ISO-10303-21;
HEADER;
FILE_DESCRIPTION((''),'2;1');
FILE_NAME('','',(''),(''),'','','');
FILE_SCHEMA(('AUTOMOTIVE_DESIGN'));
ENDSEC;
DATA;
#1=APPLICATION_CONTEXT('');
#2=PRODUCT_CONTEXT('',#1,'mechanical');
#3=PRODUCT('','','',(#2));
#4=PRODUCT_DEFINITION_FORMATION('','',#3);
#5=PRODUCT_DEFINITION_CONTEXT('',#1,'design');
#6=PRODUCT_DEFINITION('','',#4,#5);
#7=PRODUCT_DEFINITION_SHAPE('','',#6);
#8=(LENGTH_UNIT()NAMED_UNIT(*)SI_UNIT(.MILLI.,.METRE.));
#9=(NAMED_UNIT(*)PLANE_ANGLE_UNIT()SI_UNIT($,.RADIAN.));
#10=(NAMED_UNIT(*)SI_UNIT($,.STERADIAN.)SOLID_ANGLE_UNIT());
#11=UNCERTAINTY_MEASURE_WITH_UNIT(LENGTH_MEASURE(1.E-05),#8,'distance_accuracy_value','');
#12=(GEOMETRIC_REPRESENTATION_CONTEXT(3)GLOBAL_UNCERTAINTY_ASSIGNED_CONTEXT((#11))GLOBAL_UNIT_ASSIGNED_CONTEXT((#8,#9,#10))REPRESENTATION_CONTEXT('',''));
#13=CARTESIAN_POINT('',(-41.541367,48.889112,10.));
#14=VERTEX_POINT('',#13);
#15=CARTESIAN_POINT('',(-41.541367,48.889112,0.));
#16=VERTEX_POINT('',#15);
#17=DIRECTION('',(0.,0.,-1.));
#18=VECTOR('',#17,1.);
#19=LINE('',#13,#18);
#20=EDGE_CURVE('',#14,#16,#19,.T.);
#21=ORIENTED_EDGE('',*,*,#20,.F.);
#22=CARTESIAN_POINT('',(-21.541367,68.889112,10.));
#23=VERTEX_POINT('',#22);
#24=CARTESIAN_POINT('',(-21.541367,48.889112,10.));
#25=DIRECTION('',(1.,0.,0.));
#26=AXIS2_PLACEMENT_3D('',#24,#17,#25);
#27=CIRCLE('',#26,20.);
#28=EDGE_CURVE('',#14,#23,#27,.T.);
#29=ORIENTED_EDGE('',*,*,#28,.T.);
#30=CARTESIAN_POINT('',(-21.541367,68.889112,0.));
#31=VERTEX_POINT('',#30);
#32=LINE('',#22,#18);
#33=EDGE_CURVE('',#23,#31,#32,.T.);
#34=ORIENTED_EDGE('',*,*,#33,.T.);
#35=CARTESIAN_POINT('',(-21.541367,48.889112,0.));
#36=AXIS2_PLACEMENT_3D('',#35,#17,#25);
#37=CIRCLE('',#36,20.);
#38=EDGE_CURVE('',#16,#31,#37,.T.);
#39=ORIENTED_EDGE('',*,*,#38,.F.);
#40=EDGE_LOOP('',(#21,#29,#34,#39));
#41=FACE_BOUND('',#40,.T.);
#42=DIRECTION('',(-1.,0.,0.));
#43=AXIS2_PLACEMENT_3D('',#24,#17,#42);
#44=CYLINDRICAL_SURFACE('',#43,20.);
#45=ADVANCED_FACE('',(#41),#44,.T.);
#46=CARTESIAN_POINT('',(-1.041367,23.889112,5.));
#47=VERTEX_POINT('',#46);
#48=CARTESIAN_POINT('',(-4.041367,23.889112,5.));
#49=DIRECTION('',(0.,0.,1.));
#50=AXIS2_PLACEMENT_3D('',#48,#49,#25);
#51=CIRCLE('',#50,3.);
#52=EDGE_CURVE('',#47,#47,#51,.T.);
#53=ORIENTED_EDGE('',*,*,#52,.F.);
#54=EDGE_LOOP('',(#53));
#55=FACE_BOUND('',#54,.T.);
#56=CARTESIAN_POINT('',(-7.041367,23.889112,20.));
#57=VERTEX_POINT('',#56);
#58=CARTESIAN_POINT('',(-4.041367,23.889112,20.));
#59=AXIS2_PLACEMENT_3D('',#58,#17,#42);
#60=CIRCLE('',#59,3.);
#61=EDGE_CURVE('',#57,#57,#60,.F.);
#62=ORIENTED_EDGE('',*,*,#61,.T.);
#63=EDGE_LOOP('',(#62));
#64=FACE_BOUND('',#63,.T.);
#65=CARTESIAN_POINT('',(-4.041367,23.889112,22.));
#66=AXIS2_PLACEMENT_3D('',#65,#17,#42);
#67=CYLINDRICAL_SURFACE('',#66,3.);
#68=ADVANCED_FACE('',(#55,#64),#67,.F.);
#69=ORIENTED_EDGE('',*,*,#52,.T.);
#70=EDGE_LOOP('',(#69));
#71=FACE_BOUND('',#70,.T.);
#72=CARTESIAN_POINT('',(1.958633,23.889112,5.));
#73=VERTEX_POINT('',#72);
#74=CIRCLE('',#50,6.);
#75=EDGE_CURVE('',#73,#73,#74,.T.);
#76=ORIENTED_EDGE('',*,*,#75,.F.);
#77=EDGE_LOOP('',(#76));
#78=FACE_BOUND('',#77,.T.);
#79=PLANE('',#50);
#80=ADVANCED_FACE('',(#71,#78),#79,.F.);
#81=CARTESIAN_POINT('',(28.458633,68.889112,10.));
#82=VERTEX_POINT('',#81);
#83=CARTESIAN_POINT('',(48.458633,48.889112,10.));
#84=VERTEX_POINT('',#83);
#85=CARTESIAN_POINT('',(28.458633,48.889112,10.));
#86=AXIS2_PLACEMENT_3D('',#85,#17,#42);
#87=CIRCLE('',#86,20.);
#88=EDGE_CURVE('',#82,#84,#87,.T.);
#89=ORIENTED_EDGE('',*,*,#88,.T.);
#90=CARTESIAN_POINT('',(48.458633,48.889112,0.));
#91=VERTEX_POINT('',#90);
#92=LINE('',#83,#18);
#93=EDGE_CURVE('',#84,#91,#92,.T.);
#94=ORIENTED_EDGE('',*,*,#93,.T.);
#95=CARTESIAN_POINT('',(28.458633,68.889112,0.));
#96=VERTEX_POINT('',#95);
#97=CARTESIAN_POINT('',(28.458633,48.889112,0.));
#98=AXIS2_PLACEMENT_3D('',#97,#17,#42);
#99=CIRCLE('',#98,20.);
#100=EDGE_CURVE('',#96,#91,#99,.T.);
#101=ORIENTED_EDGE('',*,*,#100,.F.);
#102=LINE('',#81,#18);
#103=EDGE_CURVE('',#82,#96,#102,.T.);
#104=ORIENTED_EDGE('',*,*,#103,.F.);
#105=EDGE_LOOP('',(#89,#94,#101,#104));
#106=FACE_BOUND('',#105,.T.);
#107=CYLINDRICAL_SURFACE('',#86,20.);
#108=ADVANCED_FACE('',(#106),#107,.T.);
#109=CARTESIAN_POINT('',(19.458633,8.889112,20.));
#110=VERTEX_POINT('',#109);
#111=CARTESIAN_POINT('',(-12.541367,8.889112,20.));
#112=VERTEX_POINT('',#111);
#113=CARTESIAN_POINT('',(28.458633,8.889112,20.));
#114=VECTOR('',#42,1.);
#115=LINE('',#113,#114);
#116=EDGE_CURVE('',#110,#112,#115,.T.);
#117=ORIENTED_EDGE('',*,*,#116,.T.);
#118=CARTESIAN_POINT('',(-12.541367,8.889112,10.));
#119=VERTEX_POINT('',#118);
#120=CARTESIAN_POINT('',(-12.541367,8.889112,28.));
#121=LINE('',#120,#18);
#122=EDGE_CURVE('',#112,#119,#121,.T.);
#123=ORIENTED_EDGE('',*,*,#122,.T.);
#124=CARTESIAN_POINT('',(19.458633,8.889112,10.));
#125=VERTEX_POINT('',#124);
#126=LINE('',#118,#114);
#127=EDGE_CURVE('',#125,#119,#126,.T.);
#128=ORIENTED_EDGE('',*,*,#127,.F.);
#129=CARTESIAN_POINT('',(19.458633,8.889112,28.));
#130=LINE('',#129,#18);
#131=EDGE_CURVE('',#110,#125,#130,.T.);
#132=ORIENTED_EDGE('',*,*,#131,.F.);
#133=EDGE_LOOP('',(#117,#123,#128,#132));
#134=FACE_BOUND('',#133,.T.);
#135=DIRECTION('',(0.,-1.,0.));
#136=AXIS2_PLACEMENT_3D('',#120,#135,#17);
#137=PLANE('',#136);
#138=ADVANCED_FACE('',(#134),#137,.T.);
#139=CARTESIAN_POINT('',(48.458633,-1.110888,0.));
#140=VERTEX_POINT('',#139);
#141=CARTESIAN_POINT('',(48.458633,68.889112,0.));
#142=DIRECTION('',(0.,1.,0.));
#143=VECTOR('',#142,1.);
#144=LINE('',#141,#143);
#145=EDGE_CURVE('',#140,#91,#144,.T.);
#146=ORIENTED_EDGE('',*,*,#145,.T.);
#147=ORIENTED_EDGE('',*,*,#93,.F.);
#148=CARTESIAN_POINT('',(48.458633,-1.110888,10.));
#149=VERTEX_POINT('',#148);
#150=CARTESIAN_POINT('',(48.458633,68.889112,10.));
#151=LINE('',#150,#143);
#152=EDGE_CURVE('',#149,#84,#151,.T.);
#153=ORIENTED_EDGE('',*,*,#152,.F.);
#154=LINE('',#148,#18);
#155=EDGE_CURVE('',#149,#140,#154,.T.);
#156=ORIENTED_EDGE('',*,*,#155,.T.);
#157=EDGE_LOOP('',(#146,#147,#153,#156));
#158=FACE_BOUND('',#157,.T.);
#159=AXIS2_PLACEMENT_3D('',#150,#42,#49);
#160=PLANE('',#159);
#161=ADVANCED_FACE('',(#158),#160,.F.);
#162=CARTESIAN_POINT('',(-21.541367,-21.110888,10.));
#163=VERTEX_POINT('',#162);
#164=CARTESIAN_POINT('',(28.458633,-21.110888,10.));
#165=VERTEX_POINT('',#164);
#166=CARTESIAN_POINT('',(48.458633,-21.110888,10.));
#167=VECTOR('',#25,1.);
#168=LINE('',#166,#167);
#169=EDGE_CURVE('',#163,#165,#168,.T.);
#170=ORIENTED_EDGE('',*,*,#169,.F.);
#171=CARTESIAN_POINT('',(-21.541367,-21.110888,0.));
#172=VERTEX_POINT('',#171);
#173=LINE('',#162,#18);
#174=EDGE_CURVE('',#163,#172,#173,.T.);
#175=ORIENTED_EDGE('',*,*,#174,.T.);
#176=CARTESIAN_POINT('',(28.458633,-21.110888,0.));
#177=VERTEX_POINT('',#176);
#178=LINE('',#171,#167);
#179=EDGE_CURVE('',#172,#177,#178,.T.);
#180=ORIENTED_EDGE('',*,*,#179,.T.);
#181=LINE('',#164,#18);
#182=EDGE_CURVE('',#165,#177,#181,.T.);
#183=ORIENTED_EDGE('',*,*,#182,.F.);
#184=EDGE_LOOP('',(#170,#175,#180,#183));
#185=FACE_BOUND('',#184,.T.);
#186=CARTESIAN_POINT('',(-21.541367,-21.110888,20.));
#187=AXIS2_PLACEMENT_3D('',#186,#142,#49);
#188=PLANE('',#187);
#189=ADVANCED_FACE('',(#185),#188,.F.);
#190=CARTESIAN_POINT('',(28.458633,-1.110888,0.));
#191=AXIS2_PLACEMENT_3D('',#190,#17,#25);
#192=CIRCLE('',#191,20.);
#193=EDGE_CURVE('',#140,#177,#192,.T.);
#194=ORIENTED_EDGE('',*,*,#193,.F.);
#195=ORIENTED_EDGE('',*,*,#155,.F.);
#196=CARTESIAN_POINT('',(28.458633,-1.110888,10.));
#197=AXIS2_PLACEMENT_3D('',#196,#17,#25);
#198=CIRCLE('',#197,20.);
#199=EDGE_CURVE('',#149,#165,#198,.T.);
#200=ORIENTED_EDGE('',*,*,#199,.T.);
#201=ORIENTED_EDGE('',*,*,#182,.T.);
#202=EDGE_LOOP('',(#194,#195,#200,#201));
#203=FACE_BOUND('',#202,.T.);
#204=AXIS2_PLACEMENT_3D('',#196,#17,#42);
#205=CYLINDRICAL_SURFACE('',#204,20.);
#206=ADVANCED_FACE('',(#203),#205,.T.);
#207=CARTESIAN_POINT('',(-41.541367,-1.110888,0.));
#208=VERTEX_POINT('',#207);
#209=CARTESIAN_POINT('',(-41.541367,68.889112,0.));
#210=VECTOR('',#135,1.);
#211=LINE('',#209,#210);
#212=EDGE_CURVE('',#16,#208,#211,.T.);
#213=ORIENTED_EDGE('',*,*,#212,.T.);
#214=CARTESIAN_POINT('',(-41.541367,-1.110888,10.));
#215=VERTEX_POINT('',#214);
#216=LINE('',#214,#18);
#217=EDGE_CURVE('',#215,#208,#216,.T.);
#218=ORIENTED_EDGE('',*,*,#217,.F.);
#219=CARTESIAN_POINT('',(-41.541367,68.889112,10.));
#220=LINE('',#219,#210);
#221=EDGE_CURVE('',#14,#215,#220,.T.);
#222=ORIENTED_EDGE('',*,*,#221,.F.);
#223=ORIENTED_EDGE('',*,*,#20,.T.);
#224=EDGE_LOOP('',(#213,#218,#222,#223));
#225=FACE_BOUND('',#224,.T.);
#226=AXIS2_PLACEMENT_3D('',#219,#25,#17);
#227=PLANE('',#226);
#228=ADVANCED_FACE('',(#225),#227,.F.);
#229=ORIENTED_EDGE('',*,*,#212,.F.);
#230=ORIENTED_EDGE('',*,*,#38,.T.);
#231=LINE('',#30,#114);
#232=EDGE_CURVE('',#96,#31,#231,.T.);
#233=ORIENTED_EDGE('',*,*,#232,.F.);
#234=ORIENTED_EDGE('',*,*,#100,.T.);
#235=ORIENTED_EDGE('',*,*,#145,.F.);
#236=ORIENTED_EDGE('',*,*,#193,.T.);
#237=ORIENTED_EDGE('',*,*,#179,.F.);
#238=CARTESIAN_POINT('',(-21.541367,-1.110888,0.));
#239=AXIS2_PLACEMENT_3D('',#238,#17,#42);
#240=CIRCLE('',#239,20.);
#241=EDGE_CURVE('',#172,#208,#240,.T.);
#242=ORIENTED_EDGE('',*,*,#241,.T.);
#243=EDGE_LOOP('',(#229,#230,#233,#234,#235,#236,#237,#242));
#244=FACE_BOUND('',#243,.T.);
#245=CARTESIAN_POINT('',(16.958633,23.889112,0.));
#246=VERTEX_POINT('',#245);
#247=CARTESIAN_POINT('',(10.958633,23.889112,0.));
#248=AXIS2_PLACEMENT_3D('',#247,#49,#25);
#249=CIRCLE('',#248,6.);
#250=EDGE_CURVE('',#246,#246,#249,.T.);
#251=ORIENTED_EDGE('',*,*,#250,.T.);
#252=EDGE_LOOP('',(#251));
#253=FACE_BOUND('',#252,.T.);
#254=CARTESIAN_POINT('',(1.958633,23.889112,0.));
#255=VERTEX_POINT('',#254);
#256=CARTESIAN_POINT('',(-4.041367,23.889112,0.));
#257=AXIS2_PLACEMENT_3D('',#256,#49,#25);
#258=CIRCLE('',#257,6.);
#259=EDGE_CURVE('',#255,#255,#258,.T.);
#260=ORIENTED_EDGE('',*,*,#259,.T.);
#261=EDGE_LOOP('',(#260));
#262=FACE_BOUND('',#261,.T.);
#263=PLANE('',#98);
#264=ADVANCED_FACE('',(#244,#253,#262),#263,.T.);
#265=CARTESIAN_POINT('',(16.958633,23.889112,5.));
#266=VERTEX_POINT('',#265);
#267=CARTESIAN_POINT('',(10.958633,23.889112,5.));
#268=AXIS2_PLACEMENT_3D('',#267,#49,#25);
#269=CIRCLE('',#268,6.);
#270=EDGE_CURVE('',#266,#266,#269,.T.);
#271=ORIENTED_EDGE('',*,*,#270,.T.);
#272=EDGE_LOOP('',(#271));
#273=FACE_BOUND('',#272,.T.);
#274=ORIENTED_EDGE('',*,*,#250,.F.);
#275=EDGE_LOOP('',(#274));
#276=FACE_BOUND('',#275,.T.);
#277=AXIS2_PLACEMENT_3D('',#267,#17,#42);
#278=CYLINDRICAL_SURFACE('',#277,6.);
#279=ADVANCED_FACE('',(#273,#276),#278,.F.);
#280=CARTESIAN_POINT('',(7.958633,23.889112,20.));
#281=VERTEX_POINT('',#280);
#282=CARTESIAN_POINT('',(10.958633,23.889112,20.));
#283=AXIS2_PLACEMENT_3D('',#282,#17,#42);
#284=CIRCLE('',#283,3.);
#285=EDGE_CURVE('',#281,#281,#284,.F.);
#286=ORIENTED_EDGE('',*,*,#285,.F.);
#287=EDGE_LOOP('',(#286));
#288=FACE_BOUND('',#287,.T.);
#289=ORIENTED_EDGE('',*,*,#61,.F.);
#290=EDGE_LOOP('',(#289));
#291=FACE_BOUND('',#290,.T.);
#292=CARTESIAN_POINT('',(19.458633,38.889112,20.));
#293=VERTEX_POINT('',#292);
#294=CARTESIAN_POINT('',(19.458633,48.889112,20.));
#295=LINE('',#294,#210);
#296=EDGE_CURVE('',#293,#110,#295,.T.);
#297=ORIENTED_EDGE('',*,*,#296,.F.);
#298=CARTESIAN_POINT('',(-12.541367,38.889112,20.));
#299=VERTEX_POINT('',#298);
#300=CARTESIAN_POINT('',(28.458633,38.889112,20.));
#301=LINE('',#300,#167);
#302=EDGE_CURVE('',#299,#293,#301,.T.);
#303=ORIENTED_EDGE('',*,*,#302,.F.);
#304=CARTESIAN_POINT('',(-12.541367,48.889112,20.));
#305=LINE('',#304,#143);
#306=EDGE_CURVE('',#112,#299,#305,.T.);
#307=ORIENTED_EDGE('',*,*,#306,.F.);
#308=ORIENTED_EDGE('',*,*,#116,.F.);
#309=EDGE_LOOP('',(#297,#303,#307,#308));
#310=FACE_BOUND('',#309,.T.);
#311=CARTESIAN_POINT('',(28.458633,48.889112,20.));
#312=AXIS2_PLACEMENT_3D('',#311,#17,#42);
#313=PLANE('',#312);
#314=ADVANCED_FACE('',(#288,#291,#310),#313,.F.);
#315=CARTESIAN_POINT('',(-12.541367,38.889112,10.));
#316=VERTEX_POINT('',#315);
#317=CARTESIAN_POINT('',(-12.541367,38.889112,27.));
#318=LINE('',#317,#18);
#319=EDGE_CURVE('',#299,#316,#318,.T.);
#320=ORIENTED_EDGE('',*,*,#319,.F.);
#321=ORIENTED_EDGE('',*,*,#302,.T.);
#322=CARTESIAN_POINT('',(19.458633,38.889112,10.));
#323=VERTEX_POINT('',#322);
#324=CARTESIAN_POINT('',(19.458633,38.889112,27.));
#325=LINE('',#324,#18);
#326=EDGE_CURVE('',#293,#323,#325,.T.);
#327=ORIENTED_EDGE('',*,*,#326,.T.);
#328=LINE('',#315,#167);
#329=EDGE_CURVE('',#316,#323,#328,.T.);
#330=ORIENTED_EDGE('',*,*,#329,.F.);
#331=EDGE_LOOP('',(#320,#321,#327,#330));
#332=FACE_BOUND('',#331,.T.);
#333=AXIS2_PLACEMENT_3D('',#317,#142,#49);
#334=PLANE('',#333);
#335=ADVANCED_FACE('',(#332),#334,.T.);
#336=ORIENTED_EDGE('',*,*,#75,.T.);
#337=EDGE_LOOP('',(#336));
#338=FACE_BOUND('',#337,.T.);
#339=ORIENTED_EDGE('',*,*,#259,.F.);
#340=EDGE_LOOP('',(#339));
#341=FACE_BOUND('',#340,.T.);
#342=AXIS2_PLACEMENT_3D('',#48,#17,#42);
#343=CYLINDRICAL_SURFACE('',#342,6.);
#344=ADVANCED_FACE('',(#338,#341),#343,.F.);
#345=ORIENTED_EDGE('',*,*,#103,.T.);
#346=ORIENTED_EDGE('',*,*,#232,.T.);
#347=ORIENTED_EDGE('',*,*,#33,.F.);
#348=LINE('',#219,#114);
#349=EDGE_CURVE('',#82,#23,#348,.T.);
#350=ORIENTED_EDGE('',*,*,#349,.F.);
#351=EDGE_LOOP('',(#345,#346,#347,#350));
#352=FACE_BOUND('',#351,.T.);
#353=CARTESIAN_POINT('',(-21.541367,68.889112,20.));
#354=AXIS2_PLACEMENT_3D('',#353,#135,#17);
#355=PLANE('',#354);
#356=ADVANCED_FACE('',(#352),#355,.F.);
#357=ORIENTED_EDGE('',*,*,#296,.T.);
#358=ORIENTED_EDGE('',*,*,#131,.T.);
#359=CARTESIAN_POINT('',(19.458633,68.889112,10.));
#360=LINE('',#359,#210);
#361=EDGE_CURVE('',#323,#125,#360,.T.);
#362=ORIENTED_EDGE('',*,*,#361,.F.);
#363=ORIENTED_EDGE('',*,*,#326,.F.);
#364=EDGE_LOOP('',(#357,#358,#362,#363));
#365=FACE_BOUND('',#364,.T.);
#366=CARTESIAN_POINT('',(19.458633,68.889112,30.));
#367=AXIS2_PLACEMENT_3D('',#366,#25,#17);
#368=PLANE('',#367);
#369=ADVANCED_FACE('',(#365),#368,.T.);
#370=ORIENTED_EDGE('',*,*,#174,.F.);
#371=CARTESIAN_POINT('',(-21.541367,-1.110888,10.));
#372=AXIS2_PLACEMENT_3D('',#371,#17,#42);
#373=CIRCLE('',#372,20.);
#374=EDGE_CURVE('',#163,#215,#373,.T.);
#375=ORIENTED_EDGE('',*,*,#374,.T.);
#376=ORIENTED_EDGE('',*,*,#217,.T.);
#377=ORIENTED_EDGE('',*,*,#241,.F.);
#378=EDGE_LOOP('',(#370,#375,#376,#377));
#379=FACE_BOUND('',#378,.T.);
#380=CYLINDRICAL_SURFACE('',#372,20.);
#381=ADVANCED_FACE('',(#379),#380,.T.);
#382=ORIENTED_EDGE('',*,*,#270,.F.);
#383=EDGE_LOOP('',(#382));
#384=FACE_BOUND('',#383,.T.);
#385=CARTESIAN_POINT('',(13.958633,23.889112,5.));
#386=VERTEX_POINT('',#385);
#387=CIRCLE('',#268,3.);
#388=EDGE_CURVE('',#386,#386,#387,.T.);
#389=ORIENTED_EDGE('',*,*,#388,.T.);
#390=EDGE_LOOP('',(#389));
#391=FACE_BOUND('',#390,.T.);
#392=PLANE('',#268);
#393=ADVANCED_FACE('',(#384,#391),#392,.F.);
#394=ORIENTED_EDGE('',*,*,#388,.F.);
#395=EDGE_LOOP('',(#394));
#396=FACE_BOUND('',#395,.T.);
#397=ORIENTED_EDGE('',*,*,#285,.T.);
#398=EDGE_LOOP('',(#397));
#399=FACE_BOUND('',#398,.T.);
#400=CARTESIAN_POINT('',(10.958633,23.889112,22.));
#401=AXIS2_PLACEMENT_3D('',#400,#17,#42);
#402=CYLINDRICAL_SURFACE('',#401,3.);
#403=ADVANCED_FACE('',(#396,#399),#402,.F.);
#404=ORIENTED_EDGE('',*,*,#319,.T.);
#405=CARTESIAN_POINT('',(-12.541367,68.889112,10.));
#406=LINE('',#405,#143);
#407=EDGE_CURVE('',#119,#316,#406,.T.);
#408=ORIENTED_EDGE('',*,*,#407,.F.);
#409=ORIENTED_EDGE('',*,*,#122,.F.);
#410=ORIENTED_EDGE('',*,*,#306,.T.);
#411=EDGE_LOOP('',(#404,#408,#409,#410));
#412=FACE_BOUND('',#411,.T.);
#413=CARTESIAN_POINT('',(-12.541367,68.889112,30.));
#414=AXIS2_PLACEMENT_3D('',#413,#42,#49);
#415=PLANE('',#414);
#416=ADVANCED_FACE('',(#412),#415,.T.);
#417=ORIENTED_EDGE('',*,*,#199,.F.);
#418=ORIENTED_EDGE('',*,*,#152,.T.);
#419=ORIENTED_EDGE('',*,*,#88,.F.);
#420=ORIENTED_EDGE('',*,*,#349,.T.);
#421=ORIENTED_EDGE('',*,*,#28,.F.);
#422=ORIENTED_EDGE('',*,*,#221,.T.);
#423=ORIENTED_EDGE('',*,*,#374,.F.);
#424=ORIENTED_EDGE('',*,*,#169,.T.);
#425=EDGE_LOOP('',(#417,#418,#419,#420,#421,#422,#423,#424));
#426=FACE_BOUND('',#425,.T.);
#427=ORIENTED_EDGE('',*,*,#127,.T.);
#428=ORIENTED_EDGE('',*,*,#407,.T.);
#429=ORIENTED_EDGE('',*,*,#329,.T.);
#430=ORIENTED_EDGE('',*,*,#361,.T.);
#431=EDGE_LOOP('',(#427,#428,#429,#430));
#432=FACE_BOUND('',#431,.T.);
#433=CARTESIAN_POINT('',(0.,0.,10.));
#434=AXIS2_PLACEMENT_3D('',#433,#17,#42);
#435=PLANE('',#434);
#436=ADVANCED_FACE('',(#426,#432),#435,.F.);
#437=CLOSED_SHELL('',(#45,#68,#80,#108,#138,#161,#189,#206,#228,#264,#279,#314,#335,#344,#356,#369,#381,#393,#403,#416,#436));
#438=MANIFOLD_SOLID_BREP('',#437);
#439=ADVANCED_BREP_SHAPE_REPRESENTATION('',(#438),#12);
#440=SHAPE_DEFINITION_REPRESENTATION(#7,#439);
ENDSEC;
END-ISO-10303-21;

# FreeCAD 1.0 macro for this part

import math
import FreeCAD as App
import Part
import Sketcher
from FreeCAD import Vector
Q = App.Units.Quantity

doc = App.newDocument("Part")
body = doc.addObject("PartDesign::Body", "Body")

# Sketch on XY plane
sketch1 = body.newObject("Sketcher::SketchObject", "Sketch")
sketch1.AttachmentSupport = (doc.getObject("XY_Plane"), [""])
sketch1.MapMode = "FlatFace"
sketch1.addGeometry([
    Part.LineSegment(Vector(-42, 49, 0), Vector(-42, -1, 0)),  # 0
    Part.ArcOfCircle(Part.Circle(Vector(-22, -1, 0), Vector(0, 0, 1), 20), math.radians(180), math.radians(270)),  # 1
    Part.LineSegment(Vector(-22, -21, 0), Vector(28, -21, 0)),  # 2
    Part.ArcOfCircle(Part.Circle(Vector(28, -1, 0), Vector(0, 0, 1), 20), math.radians(-90), math.radians(0)),  # 3
    Part.LineSegment(Vector(48, -1, 0), Vector(48, 49, 0)),  # 4
    Part.ArcOfCircle(Part.Circle(Vector(28, 49, 0), Vector(0, 0, 1), 20), math.radians(0), math.radians(90)),  # 5
    Part.LineSegment(Vector(28, 69, 0), Vector(-22, 69, 0)),  # 6
    Part.ArcOfCircle(Part.Circle(Vector(-22, 49, 0), Vector(0, 0, 1), 20), math.radians(90), math.radians(180)),  # 7
], False)
sketch1.addConstraint([
    Sketcher.Constraint("Tangent", 0, 2, 1, 1),
    Sketcher.Constraint("Tangent", 1, 2, 2, 1),
    Sketcher.Constraint("Tangent", 2, 2, 3, 1),
    Sketcher.Constraint("Tangent", 3, 2, 4, 1),
    Sketcher.Constraint("Tangent", 4, 2, 5, 1),
    Sketcher.Constraint("Tangent", 5, 2, 6, 1),
    Sketcher.Constraint("Tangent", 6, 2, 7, 1),
    Sketcher.Constraint("Tangent", 7, 2, 0, 1),
    Sketcher.Constraint("Vertical", 0),
    Sketcher.Constraint("Horizontal", 2),
    Sketcher.Constraint("Vertical", 4),
    Sketcher.Constraint("Horizontal", 6),
    Sketcher.Constraint("Equal", 1, 3),
    Sketcher.Constraint("Equal", 3, 5),
    Sketcher.Constraint("Equal", 5, 7),
    Sketcher.Constraint("Equal", 6, 0),
    Sketcher.Constraint("Radius", 1, 20.0),
    Sketcher.Constraint("DistanceX", 2, 1, 2, 2, 50.0),
    Sketcher.Constraint("DistanceX", 1, 3, -1, 1, 21.541367),
    Sketcher.Constraint("DistanceY", 1, 3, -1, 1, 1.110888),
])
pad1 = body.newObject("PartDesign::Pad", "Pad")
pad1.Profile = sketch1
pad1.Length = 20

# Sketch on XY plane
sketch2 = body.newObject("Sketcher::SketchObject", "Sketch001")
sketch2.AttachmentSupport = (doc.getObject("XY_Plane"), [""])
sketch2.MapMode = "FlatFace"
sketch2.addGeometry([
    Part.Circle(Vector(-4, 23.9, 0), Vector(0, 0, 1), 2.5),
    Part.Circle(Vector(11, 23.9, 0), Vector(0, 0, 1), 2.5),
], False)
sketch2.addConstraint([
    Sketcher.Constraint("Equal", 0, 1),
    Sketcher.Constraint("Horizontal", 0, 3, 1, 3),
    Sketcher.Constraint("Diameter", 0, 5.0),
    Sketcher.Constraint("DistanceX", 0, 3, 1, 3, 15.0),
    Sketcher.Constraint("DistanceX", 0, 3, -1, 1, 4.041367),
    Sketcher.Constraint("DistanceY", -1, 1, 0, 3, 23.889112),
])
pocket1 = body.newObject("PartDesign::Pocket", "Pocket")
pocket1.Profile = sketch2
pocket1.Type = "ThroughAll"
pocket1.Midplane = True

# Sketch on XY plane
sketch3 = body.newObject("Sketcher::SketchObject", "Sketch002")
sketch3.AttachmentSupport = (doc.getObject("XY_Plane"), [""])
sketch3.MapMode = "FlatFace"
sketch3.addGeometry([
    Part.LineSegment(Vector(-13, 69, 0), Vector(-13, 39, 0)),
    Part.LineSegment(Vector(-13, 39, 0), Vector(19, 39, 0)),
    Part.LineSegment(Vector(19, 39, 0), Vector(19, 69, 0)),
    Part.LineSegment(Vector(19, 69, 0), Vector(-13, 69, 0)),
], False)
sketch3.addConstraint([
    Sketcher.Constraint("Coincident", 0, 2, 1, 1),
    Sketcher.Constraint("Coincident", 1, 2, 2, 1),
    Sketcher.Constraint("Coincident", 2, 2, 3, 1),
    Sketcher.Constraint("Coincident", 3, 2, 0, 1),
    Sketcher.Constraint("Vertical", 0),
    Sketcher.Constraint("Horizontal", 1),
    Sketcher.Constraint("Vertical", 2),
    Sketcher.Constraint("Horizontal", 3),
    Sketcher.Constraint("DistanceX", 1, 1, 1, 2, 32.0),
    Sketcher.Constraint("DistanceY", 0, 2, 0, 1, 30.0),
    Sketcher.Constraint("DistanceX", 0, 2, -1, 1, 12.541367),
    Sketcher.Constraint("DistanceY", -1, 1, 0, 2, 38.889112),
])
pocket2 = body.newObject("PartDesign::Pocket", "Pocket001")
pocket2.Profile = sketch3
pocket2.Length = 27
pocket2.Reversed = True

# Sketch on XY plane
sketch4 = body.newObject("Sketcher::SketchObject", "Sketch003")
sketch4.AttachmentSupport = (doc.getObject("XY_Plane"), [""])
sketch4.MapMode = "FlatFace"
sketch4.addGeometry([
    Part.LineSegment(Vector(-13, 69, 0), Vector(-13, 39, 0)),
    Part.LineSegment(Vector(-13, 39, 0), Vector(19, 39, 0)),
    Part.LineSegment(Vector(19, 39, 0), Vector(19, 69, 0)),
    Part.LineSegment(Vector(19, 69, 0), Vector(-13, 69, 0)),
], False)
sketch4.addConstraint([
    Sketcher.Constraint("Coincident", 0, 2, 1, 1),
    Sketcher.Constraint("Coincident", 1, 2, 2, 1),
    Sketcher.Constraint("Coincident", 2, 2, 3, 1),
    Sketcher.Constraint("Coincident", 3, 2, 0, 1),
    Sketcher.Constraint("Vertical", 0),
    Sketcher.Constraint("Horizontal", 1),
    Sketcher.Constraint("Vertical", 2),
    Sketcher.Constraint("Horizontal", 3),
    Sketcher.Constraint("DistanceX", 1, 1, 1, 2, 32.0),
    Sketcher.Constraint("DistanceY", 0, 2, 0, 1, 30.0),
    Sketcher.Constraint("DistanceX", 0, 2, -1, 1, 12.541367),
    Sketcher.Constraint("DistanceY", -1, 1, 0, 2, 38.889112),
])
pad2 = body.newObject("PartDesign::Pad", "Pad001")
pad2.Profile = sketch4
pad2.Length = 16

# Sketch on XY plane
sketch5 = body.newObject("Sketcher::SketchObject", "Sketch004")
sketch5.AttachmentSupport = (doc.getObject("XY_Plane"), [""])
sketch5.MapMode = "FlatFace"
sketch5.addGeometry([
    Part.LineSegment(Vector(15.7, 23.9, 0), Vector(13.3, 28, 0)),  # 0
    Part.LineSegment(Vector(13.3, 28, 0), Vector(8.6, 28, 0)),  # 1
    Part.LineSegment(Vector(8.6, 28, 0), Vector(6.2, 23.9, 0)),  # 2
    Part.LineSegment(Vector(6.2, 23.9, 0), Vector(8.6, 19.8, 0)),  # 3
    Part.LineSegment(Vector(8.6, 19.8, 0), Vector(13.3, 19.8, 0)),  # 4
    Part.LineSegment(Vector(13.3, 19.8, 0), Vector(15.7, 23.9, 0)),  # 5
    Part.LineSegment(Vector(0.7, 23.9, 0), Vector(-1.7, 28, 0)),  # 6
    Part.LineSegment(Vector(-1.7, 28, 0), Vector(-6.4, 28, 0)),  # 7
    Part.LineSegment(Vector(-6.4, 28, 0), Vector(-8.8, 23.9, 0)),  # 8
    Part.LineSegment(Vector(-8.8, 23.9, 0), Vector(-6.4, 19.8, 0)),  # 9
    Part.LineSegment(Vector(-6.4, 19.8, 0), Vector(-1.7, 19.8, 0)),  # 10
    Part.LineSegment(Vector(-1.7, 19.8, 0), Vector(0.7, 23.9, 0)),  # 11
], False)
sketch5.addConstraint([
    Sketcher.Constraint("Coincident", 0, 2, 1, 1),
    Sketcher.Constraint("Coincident", 1, 2, 2, 1),
    Sketcher.Constraint("Coincident", 2, 2, 3, 1),
    Sketcher.Constraint("Coincident", 3, 2, 4, 1),
    Sketcher.Constraint("Coincident", 4, 2, 5, 1),
    Sketcher.Constraint("Coincident", 5, 2, 0, 1),
    Sketcher.Constraint("Coincident", 6, 2, 7, 1),
    Sketcher.Constraint("Coincident", 7, 2, 8, 1),
    Sketcher.Constraint("Coincident", 8, 2, 9, 1),
    Sketcher.Constraint("Coincident", 9, 2, 10, 1),
    Sketcher.Constraint("Coincident", 10, 2, 11, 1),
    Sketcher.Constraint("Coincident", 11, 2, 6, 1),
    Sketcher.Constraint("Horizontal", 1),
    Sketcher.Constraint("Horizontal", 4),
    Sketcher.Constraint("Horizontal", 7),
    Sketcher.Constraint("Horizontal", 10),
    Sketcher.Constraint("Parallel", 0, 3),
    Sketcher.Constraint("Parallel", 2, 5),
    Sketcher.Constraint("Parallel", 3, 6),
    Sketcher.Constraint("Parallel", 5, 8),
    Sketcher.Constraint("Parallel", 6, 9),
    Sketcher.Constraint("Parallel", 8, 11),
    Sketcher.Constraint("Horizontal", 2, 2, 5, 2),
    Sketcher.Constraint("Horizontal", 1, 2, 6, 2),
    Sketcher.Constraint("Horizontal", 5, 2, 8, 2),
    Sketcher.Constraint("Horizontal", 4, 2, 9, 2),
    Sketcher.Constraint("Horizontal", 8, 2, 11, 2),
    Sketcher.Constraint("Vertical", 1, 2, 3, 2),
    Sketcher.Constraint("Vertical", 0, 2, 4, 2),
    Sketcher.Constraint("Equal", 4, 7),
    Sketcher.Constraint("Angle", 0, Q("120 deg")),
    Sketcher.Constraint("DistanceX", 6, 2, 0, 2, 15.0),
    Sketcher.Constraint("DistanceY", 2, 2, 1, 2, 4.1),
    Sketcher.Constraint("DistanceX", 1, 2, 1, 1, 4.734272),
    Sketcher.Constraint("DistanceX", -1, 1, 0, 2, 13.325769),
    Sketcher.Constraint("DistanceY", -1, 1, 0, 2, 27.989112),
])
pocket3 = body.newObject("PartDesign::Pocket", "Pocket002")
pocket3.Profile = sketch5
pocket3.Length = 4
pocket3.Reversed = True

# Sketch on XY plane
sketch6 = body.newObject("Sketcher::SketchObject", "Sketch005")
sketch6.AttachmentSupport = (doc.getObject("XY_Plane"), [""])
sketch6.MapMode = "FlatFace"
sketch6.addGeometry([
    Part.LineSegment(Vector(-15, 33, 0), Vector(-15, 15, 0)),
    Part.LineSegment(Vector(-15, 15, 0), Vector(19, 15, 0)),
    Part.LineSegment(Vector(19, 15, 0), Vector(19, 33, 0)),
    Part.LineSegment(Vector(19, 33, 0), Vector(-15, 33, 0)),
], False)
sketch6.addConstraint([
    Sketcher.Constraint("Coincident", 0, 2, 1, 1),
    Sketcher.Constraint("Coincident", 1, 2, 2, 1),
    Sketcher.Constraint("Coincident", 2, 2, 3, 1),
    Sketcher.Constraint("Coincident", 3, 2, 0, 1),
    Sketcher.Constraint("Vertical", 0),
    Sketcher.Constraint("Horizontal", 1),
    Sketcher.Constraint("Vertical", 2),
    Sketcher.Constraint("Horizontal", 3),
    Sketcher.Constraint("DistanceX", 1, 1, 1, 2, 33.515955),
    Sketcher.Constraint("DistanceY", 0, 2, 0, 1, 18.308275),
    Sketcher.Constraint("DistanceY", -1, 1, 2, 2, 32.821779),
    Sketcher.Constraint("DistanceX", 0, 2, -1, 1, 14.554347),
])
pad3 = body.newObject("PartDesign::Pad", "Pad002")
pad3.Profile = sketch6
pad3.Length = 10

# Sketch on XY plane
sketch7 = body.newObject("Sketcher::SketchObject", "Sketch006")
sketch7.AttachmentSupport = (doc.getObject("XY_Plane"), [""])
sketch7.MapMode = "FlatFace"
sketch7.addGeometry([
    Part.Circle(Vector(-4, 23.9, 0), Vector(0, 0, 1), 2.5),
    Part.Circle(Vector(11, 23.9, 0), Vector(0, 0, 1), 2.5),
], False)
sketch7.addConstraint([
    Sketcher.Constraint("Equal", 0, 1),
    Sketcher.Constraint("Horizontal", 0, 3, 1, 3),
    Sketcher.Constraint("Diameter", 0, 5.0),
    Sketcher.Constraint("DistanceX", 0, 3, 1, 3, 15.0),
    Sketcher.Constraint("DistanceX", 0, 3, -1, 1, 4.041367),
    Sketcher.Constraint("DistanceY", -1, 1, 0, 3, 23.889112),
])
pocket4 = body.newObject("PartDesign::Pocket", "Pocket003")
pocket4.Profile = sketch7
pocket4.Type = "ThroughAll"
pocket4.Midplane = True

# Sketch on XY plane
sketch8 = body.newObject("Sketcher::SketchObject", "Sketch007")
sketch8.AttachmentSupport = (doc.getObject("XY_Plane"), [""])
sketch8.MapMode = "FlatFace"
sketch8.addGeometry([
    Part.LineSegment(Vector(-49, 69, 0), Vector(-49, -23, 0)),  # 0
    Part.LineSegment(Vector(-49, -23, 0), Vector(-13, -23, 0)),  # 1
    Part.LineSegment(Vector(-13, -23, 0), Vector(-13, 69, 0)),  # 2
    Part.LineSegment(Vector(-13, 69, 0), Vector(-49, 69, 0)),  # 3
    Part.LineSegment(Vector(19, 69, 0), Vector(19, -23, 0)),  # 4
    Part.LineSegment(Vector(19, -23, 0), Vector(58, -23, 0)),  # 5
    Part.LineSegment(Vector(58, -23, 0), Vector(58, 69, 0)),  # 6
    Part.LineSegment(Vector(58, 69, 0), Vector(19, 69, 0)),  # 7
], False)
sketch8.addConstraint([
    Sketcher.Constraint("Coincident", 0, 2, 1, 1),
    Sketcher.Constraint("Coincident", 1, 2, 2, 1),
    Sketcher.Constraint("Coincident", 2, 2, 3, 1),
    Sketcher.Constraint("Coincident", 3, 2, 0, 1),
    Sketcher.Constraint("Coincident", 4, 2, 5, 1),
    Sketcher.Constraint("Coincident", 5, 2, 6, 1),
    Sketcher.Constraint("Coincident", 6, 2, 7, 1),
    Sketcher.Constraint("Coincident", 7, 2, 4, 1),
    Sketcher.Constraint("Vertical", 0),
    Sketcher.Constraint("Horizontal", 1),
    Sketcher.Constraint("Vertical", 2),
    Sketcher.Constraint("Horizontal", 3),
    Sketcher.Constraint("Vertical", 4),
    Sketcher.Constraint("Horizontal", 5),
    Sketcher.Constraint("Vertical", 6),
    Sketcher.Constraint("Horizontal", 7),
    Sketcher.Constraint("Horizontal", 1, 2, 4, 2),
    Sketcher.Constraint("Horizontal", 3, 2, 6, 2),
    Sketcher.Constraint("DistanceX", 1, 2, 4, 2, 32.0),
    Sketcher.Constraint("DistanceX", 5, 1, 5, 2, 38.306269),
    Sketcher.Constraint("DistanceY", 0, 2, 0, 1, 91.485439),
    Sketcher.Constraint("DistanceX", -1, 1, 5, 2, 57.764902),
    Sketcher.Constraint("DistanceX", 1, 1, 1, 2, 36.495037),
    Sketcher.Constraint("DistanceY", 0, 2, -1, 1, 22.596327),
])
pocket5 = body.newObject("PartDesign::Pocket", "Pocket004")
pocket5.Profile = sketch8
pocket5.Length = 30
pocket5.Reversed = True

# Sketch on XY plane
sketch9 = body.newObject("Sketcher::SketchObject", "Sketch008")
sketch9.AttachmentSupport = (doc.getObject("XY_Plane"), [""])
sketch9.MapMode = "FlatFace"
sketch9.addGeometry([
    Part.LineSegment(Vector(-42, 69, 0), Vector(-42, -21, 0)),  # 0
    Part.LineSegment(Vector(-42, -21, 0), Vector(-13, -21, 0)),  # 1
    Part.LineSegment(Vector(-13, -21, 0), Vector(-13, 69, 0)),  # 2
    Part.LineSegment(Vector(-13, 69, 0), Vector(-42, 69, 0)),  # 3
    Part.LineSegment(Vector(19, 69, 0), Vector(19, -21, 0)),  # 4
    Part.LineSegment(Vector(19, -21, 0), Vector(48, -21, 0)),  # 5
    Part.LineSegment(Vector(48, -21, 0), Vector(48, 69, 0)),  # 6
    Part.LineSegment(Vector(48, 69, 0), Vector(19, 69, 0)),  # 7
], False)
sketch9.addConstraint([
    Sketcher.Constraint("Coincident", 0, 2, 1, 1),
    Sketcher.Constraint("Coincident", 1, 2, 2, 1),
    Sketcher.Constraint("Coincident", 2, 2, 3, 1),
    Sketcher.Constraint("Coincident", 3, 2, 0, 1),
    Sketcher.Constraint("Coincident", 4, 2, 5, 1),
    Sketcher.Constraint("Coincident", 5, 2, 6, 1),
    Sketcher.Constraint("Coincident", 6, 2, 7, 1),
    Sketcher.Constraint("Coincident", 7, 2, 4, 1),
    Sketcher.Constraint("Vertical", 0),
    Sketcher.Constraint("Horizontal", 1),
    Sketcher.Constraint("Vertical", 2),
    Sketcher.Constraint("Horizontal", 3),
    Sketcher.Constraint("Vertical", 4),
    Sketcher.Constraint("Horizontal", 5),
    Sketcher.Constraint("Vertical", 6),
    Sketcher.Constraint("Horizontal", 7),
    Sketcher.Constraint("Horizontal", 1, 2, 4, 2),
    Sketcher.Constraint("Horizontal", 3, 2, 6, 2),
    Sketcher.Constraint("Equal", 3, 5),
    Sketcher.Constraint("DistanceX", 1, 1, 1, 2, 29.0),
    Sketcher.Constraint("DistanceY", 0, 2, 0, 1, 90.0),
    Sketcher.Constraint("DistanceX", 1, 2, 4, 2, 32.0),
    Sketcher.Constraint("DistanceX", 0, 2, -1, 1, 41.541367),
    Sketcher.Constraint("DistanceY", 0, 2, -1, 1, 21.110888),
])
pad4 = body.newObject("PartDesign::Pad", "Pad003")
pad4.Profile = sketch9
pad4.Length = 10

# Sketch on XY plane
sketch10 = body.newObject("Sketcher::SketchObject", "Sketch009")
sketch10.AttachmentSupport = (doc.getObject("XY_Plane"), [""])
sketch10.MapMode = "FlatFace"
sketch10.addGeometry([
    Part.LineSegment(Vector(-22, 69, 0), Vector(-42, 69, 0)),  # 0
    Part.LineSegment(Vector(-42, 69, 0), Vector(-42, 49, 0)),  # 1
    Part.ArcOfCircle(Part.Circle(Vector(-22, 49, 0), Vector(0, 0, 1), 20), math.radians(90), math.radians(180)),  # 2
    Part.LineSegment(Vector(48, 49, 0), Vector(48, 69, 0)),  # 3
    Part.LineSegment(Vector(48, 69, 0), Vector(28, 69, 0)),  # 4
    Part.ArcOfCircle(Part.Circle(Vector(28, 49, 0), Vector(0, 0, 1), 20), math.radians(0), math.radians(90)),  # 5
    Part.LineSegment(Vector(28, -21, 0), Vector(48, -21, 0)),  # 6
    Part.LineSegment(Vector(48, -21, 0), Vector(48, -1, 0)),  # 7
    Part.ArcOfCircle(Part.Circle(Vector(28, -1, 0), Vector(0, 0, 1), 20), math.radians(-90), math.radians(0)),  # 8
    Part.LineSegment(Vector(-42, -1, 0), Vector(-42, -21, 0)),  # 9
    Part.LineSegment(Vector(-42, -21, 0), Vector(-22, -21, 0)),  # 10
    Part.ArcOfCircle(Part.Circle(Vector(-22, -1, 0), Vector(0, 0, 1), 20), math.radians(180), math.radians(270)),  # 11
], False)
sketch10.addConstraint([
    Sketcher.Constraint("Coincident", 0, 2, 1, 1),
    Sketcher.Constraint("Tangent", 1, 2, 2, 2),
    Sketcher.Constraint("Tangent", 2, 1, 0, 1),
    Sketcher.Constraint("Coincident", 3, 2, 4, 1),
    Sketcher.Constraint("Tangent", 4, 2, 5, 2),
    Sketcher.Constraint("Tangent", 5, 1, 3, 1),
    Sketcher.Constraint("Coincident", 6, 2, 7, 1),
    Sketcher.Constraint("Tangent", 7, 2, 8, 2),
    Sketcher.Constraint("Tangent", 8, 1, 6, 1),
    Sketcher.Constraint("Coincident", 9, 2, 10, 1),
    Sketcher.Constraint("Tangent", 10, 2, 11, 2),
    Sketcher.Constraint("Tangent", 11, 1, 9, 1),
    Sketcher.Constraint("Horizontal", 0),
    Sketcher.Constraint("Vertical", 1),
    Sketcher.Constraint("Vertical", 3),
    Sketcher.Constraint("Horizontal", 4),
    Sketcher.Constraint("Horizontal", 6),
    Sketcher.Constraint("Vertical", 7),
    Sketcher.Constraint("Vertical", 9),
    Sketcher.Constraint("Horizontal", 10),
    Sketcher.Constraint("Equal", 2, 5),
    Sketcher.Constraint("Equal", 5, 8),
    Sketcher.Constraint("Equal", 8, 11),
    Sketcher.Constraint("Horizontal", 2, 3, 5, 3),
    Sketcher.Constraint("Horizontal", 8, 3, 11, 3),
    Sketcher.Constraint("Vertical", 5, 3, 8, 3),
    Sketcher.Constraint("Vertical", 2, 3, 11, 3),
    Sketcher.Constraint("Radius", 2, 20.0),
    Sketcher.Constraint("DistanceX", 2, 3, 5, 3, 50.0),
    Sketcher.Constraint("DistanceY", 8, 3, 5, 3, 50.0),
    Sketcher.Constraint("DistanceX", 2, 3, -1, 1, 21.541367),
    Sketcher.Constraint("DistanceY", -1, 1, 2, 3, 48.889112),
])
pocket6 = body.newObject("PartDesign::Pocket", "Pocket005")
pocket6.Profile = sketch10
pocket6.Length = 10
pocket6.Reversed = True

# Sketch on XY plane
sketch11 = body.newObject("Sketcher::SketchObject", "Sketch010")
sketch11.AttachmentSupport = (doc.getObject("XY_Plane"), [""])
sketch11.MapMode = "FlatFace"
sketch11.addGeometry([
    Part.LineSegment(Vector(-13, 69, 0), Vector(-13, 39, 0)),  # 0
    Part.LineSegment(Vector(-13, 39, 0), Vector(19, 39, 0)),  # 1
    Part.LineSegment(Vector(19, 39, 0), Vector(19, 69, 0)),  # 2
    Part.LineSegment(Vector(19, 69, 0), Vector(-13, 69, 0)),  # 3
    Part.LineSegment(Vector(-13, 9, 0), Vector(-13, -21, 0)),  # 4
    Part.LineSegment(Vector(-13, -21, 0), Vector(19, -21, 0)),  # 5
    Part.LineSegment(Vector(19, -21, 0), Vector(19, 9, 0)),  # 6
    Part.LineSegment(Vector(19, 9, 0), Vector(-13, 9, 0)),  # 7
], False)
sketch11.addConstraint([
    Sketcher.Constraint("Coincident", 0, 2, 1, 1),
    Sketcher.Constraint("Coincident", 1, 2, 2, 1),
    Sketcher.Constraint("Coincident", 2, 2, 3, 1),
    Sketcher.Constraint("Coincident", 3, 2, 0, 1),
    Sketcher.Constraint("Coincident", 4, 2, 5, 1),
    Sketcher.Constraint("Coincident", 5, 2, 6, 1),
    Sketcher.Constraint("Coincident", 6, 2, 7, 1),
    Sketcher.Constraint("Coincident", 7, 2, 4, 1),
    Sketcher.Constraint("Vertical", 0),
    Sketcher.Constraint("Horizontal", 1),
    Sketcher.Constraint("Vertical", 2),
    Sketcher.Constraint("Horizontal", 3),
    Sketcher.Constraint("Vertical", 4),
    Sketcher.Constraint("Horizontal", 5),
    Sketcher.Constraint("Vertical", 6),
    Sketcher.Constraint("Horizontal", 7),
    Sketcher.Constraint("Vertical", 3, 2, 4, 2),
    Sketcher.Constraint("Vertical", 2, 2, 5, 2),
    Sketcher.Constraint("Equal", 2, 4),
    Sketcher.Constraint("DistanceX", 1, 1, 1, 2, 32.0),
    Sketcher.Constraint("DistanceY", 0, 2, 0, 1, 30.0),
    Sketcher.Constraint("DistanceY", 4, 2, 0, 2, 60.0),
    Sketcher.Constraint("DistanceX", 0, 2, -1, 1, 12.541367),
    Sketcher.Constraint("DistanceY", -1, 1, 0, 2, 38.889112),
])
pocket7 = body.newObject("PartDesign::Pocket", "Pocket006")
pocket7.Profile = sketch11
pocket7.Length = 28
pocket7.Reversed = True

# Sketch on XY plane
sketch12 = body.newObject("Sketcher::SketchObject", "Sketch011")
sketch12.AttachmentSupport = (doc.getObject("XY_Plane"), [""])
sketch12.MapMode = "FlatFace"
sketch12.addGeometry([
    Part.LineSegment(Vector(-13, 69, 0), Vector(-13, 39, 0)),  # 0
    Part.LineSegment(Vector(-13, 39, 0), Vector(19, 39, 0)),  # 1
    Part.LineSegment(Vector(19, 39, 0), Vector(19, 69, 0)),  # 2
    Part.LineSegment(Vector(19, 69, 0), Vector(-13, 69, 0)),  # 3
    Part.LineSegment(Vector(-13, 9, 0), Vector(-13, -21, 0)),  # 4
    Part.LineSegment(Vector(-13, -21, 0), Vector(19, -21, 0)),  # 5
    Part.LineSegment(Vector(19, -21, 0), Vector(19, 9, 0)),  # 6
    Part.LineSegment(Vector(19, 9, 0), Vector(-13, 9, 0)),  # 7
], False)
sketch12.addConstraint([
    Sketcher.Constraint("Coincident", 0, 2, 1, 1),
    Sketcher.Constraint("Coincident", 1, 2, 2, 1),
    Sketcher.Constraint("Coincident", 2, 2, 3, 1),
    Sketcher.Constraint("Coincident", 3, 2, 0, 1),
    Sketcher.Constraint("Coincident", 4, 2, 5, 1),
    Sketcher.Constraint("Coincident", 5, 2, 6, 1),
    Sketcher.Constraint("Coincident", 6, 2, 7, 1),
    Sketcher.Constraint("Coincident", 7, 2, 4, 1),
    Sketcher.Constraint("Vertical", 0),
    Sketcher.Constraint("Horizontal", 1),
    Sketcher.Constraint("Vertical", 2),
    Sketcher.Constraint("Horizontal", 3),
    Sketcher.Constraint("Vertical", 4),
    Sketcher.Constraint("Horizontal", 5),
    Sketcher.Constraint("Vertical", 6),
    Sketcher.Constraint("Horizontal", 7),
    Sketcher.Constraint("Vertical", 3, 2, 4, 2),
    Sketcher.Constraint("Vertical", 2, 2, 5, 2),
    Sketcher.Constraint("Equal", 2, 4),
    Sketcher.Constraint("DistanceX", 1, 1, 1, 2, 32.0),
    Sketcher.Constraint("DistanceY", 0, 2, 0, 1, 30.0),
    Sketcher.Constraint("DistanceY", 4, 2, 0, 2, 60.0),
    Sketcher.Constraint("DistanceX", 0, 2, -1, 1, 12.541367),
    Sketcher.Constraint("DistanceY", -1, 1, 0, 2, 38.889112),
])
pad5 = body.newObject("PartDesign::Pad", "Pad004")
pad5.Profile = sketch12
pad5.Length = 10

# Sketch on XY plane
sketch13 = body.newObject("Sketcher::SketchObject", "Sketch012")
sketch13.AttachmentSupport = (doc.getObject("XY_Plane"), [""])
sketch13.MapMode = "FlatFace"
sketch13.addGeometry([
    Part.Circle(Vector(-4, 23.9, 0), Vector(0, 0, 1), 3),
    Part.Circle(Vector(11, 23.9, 0), Vector(0, 0, 1), 3),
], False)
sketch13.addConstraint([
    Sketcher.Constraint("Equal", 0, 1),
    Sketcher.Constraint("Horizontal", 0, 3, 1, 3),
    Sketcher.Constraint("Diameter", 0, 6.0),
    Sketcher.Constraint("DistanceX", 0, 3, 1, 3, 15.0),
    Sketcher.Constraint("DistanceX", 0, 3, -1, 1, 4.041367),
    Sketcher.Constraint("DistanceY", -1, 1, 0, 3, 23.889112),
])
pocket8 = body.newObject("PartDesign::Pocket", "Pocket007")
pocket8.Profile = sketch13
pocket8.Length = 22
pocket8.Reversed = True

# Sketch on XY plane
sketch14 = body.newObject("Sketcher::SketchObject", "Sketch013")
sketch14.AttachmentSupport = (doc.getObject("XY_Plane"), [""])
sketch14.MapMode = "FlatFace"
sketch14.addGeometry([
    Part.Circle(Vector(11, 24, 0), Vector(0, 0, 1), 6),
    Part.Circle(Vector(-4, 24, 0), Vector(0, 0, 1), 6),
], False)
sketch14.addConstraint([
    Sketcher.Constraint("Equal", 0, 1),
    Sketcher.Constraint("Horizontal", 0, 3, 1, 3),
    Sketcher.Constraint("Diameter", 0, 12.0),
    Sketcher.Constraint("DistanceX", 1, 3, 0, 3, 15.0),
    Sketcher.Constraint("DistanceX", -1, 1, 0, 3, 10.958633),
    Sketcher.Constraint("DistanceY", -1, 1, 0, 3, 23.889112),
])
pocket9 = body.newObject("PartDesign::Pocket", "Pocket008")
pocket9.Profile = sketch14
pocket9.Length = 5
pocket9.Reversed = True

doc.recompute()
